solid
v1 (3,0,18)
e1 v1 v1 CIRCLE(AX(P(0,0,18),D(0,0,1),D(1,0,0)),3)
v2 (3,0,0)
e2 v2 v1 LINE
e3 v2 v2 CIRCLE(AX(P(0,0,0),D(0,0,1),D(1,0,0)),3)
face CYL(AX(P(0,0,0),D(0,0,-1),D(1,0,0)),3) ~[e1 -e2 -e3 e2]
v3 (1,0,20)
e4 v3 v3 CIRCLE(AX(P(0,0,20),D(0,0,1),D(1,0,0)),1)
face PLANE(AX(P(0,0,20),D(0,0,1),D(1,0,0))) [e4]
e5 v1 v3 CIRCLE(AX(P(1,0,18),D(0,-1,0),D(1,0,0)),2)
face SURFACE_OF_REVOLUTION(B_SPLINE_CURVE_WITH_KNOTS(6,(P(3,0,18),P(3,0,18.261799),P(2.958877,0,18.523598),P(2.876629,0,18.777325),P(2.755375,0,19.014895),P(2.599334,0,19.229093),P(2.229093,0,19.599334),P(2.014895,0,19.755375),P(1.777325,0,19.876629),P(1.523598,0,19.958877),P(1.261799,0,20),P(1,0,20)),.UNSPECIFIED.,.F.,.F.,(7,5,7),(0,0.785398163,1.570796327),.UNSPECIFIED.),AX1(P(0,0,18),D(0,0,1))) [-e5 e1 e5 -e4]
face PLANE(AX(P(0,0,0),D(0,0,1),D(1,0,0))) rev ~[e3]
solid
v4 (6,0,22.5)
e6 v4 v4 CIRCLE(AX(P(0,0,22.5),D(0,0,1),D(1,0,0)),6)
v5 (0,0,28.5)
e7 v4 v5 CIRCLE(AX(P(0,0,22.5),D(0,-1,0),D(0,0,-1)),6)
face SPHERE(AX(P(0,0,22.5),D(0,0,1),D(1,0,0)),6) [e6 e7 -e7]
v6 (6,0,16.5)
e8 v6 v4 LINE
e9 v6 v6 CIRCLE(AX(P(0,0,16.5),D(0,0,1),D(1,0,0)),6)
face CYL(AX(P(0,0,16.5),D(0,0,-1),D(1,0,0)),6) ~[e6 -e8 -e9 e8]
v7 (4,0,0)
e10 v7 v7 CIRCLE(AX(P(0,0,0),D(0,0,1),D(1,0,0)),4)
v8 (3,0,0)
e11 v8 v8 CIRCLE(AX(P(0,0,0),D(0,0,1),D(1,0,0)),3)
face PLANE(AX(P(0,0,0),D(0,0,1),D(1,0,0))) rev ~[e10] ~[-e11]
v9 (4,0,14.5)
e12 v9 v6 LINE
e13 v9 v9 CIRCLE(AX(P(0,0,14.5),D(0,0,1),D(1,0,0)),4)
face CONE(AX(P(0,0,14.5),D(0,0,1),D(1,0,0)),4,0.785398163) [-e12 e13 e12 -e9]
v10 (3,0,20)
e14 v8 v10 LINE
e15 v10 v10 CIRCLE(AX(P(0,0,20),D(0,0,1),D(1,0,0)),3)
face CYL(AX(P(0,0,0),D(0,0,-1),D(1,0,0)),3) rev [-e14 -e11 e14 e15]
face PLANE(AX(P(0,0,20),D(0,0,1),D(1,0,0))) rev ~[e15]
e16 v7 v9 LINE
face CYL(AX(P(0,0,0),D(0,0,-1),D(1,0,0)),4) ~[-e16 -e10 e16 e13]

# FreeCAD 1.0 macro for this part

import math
import FreeCAD as App
import Part
import Sketcher


def edges_at(feature, points):
    """Names of the edges that pass closest to the given points."""
    edges = feature.Shape.Edges
    near = lambda p: min(range(len(edges)), key=lambda i: edges[i].distToShape(Part.Vertex(*p))[0])
    return sorted({f"Edge{near(p) + 1}" for p in points})


def add_polygon(sketch, points):
    """Adds a closed chain of lines whose ends are joined by coincident constraints."""
    first, n = sketch.GeometryCount, len(points)
    for a, b in zip(points, points[1:] + points[:1]):
        sketch.addGeometry(Part.LineSegment(App.Vector(*a, 0), App.Vector(*b, 0)), False)
    for i in range(n):
        sketch.addConstraint(Sketcher.Constraint("Coincident", first + i, 2, first + (i + 1) % n, 1))

doc = App.newDocument("Part")
params = doc.addObject("Spreadsheet::Sheet", "Params")
for row, (alias, value) in enumerate([
    ("sketch1_diameter", "6 mm"),
    ("pad1_length", "20 mm"),
    ("sketch2_width", "4 mm"),
    ("sketch2_width2", "6 mm"),
    ("sketch2_height", "2 mm"),
    ("revolution_angle", "360 deg"),
    ("sketch3_diameter", "12 mm"),
    ("pad2_length", "6 mm"),
    ("sketch4_radius", "6 mm"),
    ("revolution2_angle", "360 deg"),
    ("sketch5_diameter", "8 mm"),
    ("pad3_length", "15 mm"),
    ("sketch6_diameter", "6 mm"),
    ("pad4_length", "20 mm"),
    ("fillet_radius", "2 mm"),
], start=1):
    params.set(f"A{row}", alias)
    params.set(f"B{row}", "=" + value)
    params.setAlias(f"B{row}", alias)

body = doc.addObject("PartDesign::Body", "Body")

sketch1 = body.newObject("Sketcher::SketchObject", "Sketch")
sketch1.AttachmentSupport = (doc.getObject("XY_Plane"), [""])
sketch1.MapMode = "FlatFace"
sketch1.addGeometry(Part.Circle(App.Vector(0, 0, 0), App.Vector(0, 0, 1), 3), False)
sketch1.addConstraint([
    Sketcher.Constraint("Coincident", 0, 3, -1, 1),
    Sketcher.Constraint("Diameter", 0, 6.0),
])
sketch1.setExpression("Constraints[1]", "Params.sketch1_diameter")
pad1 = body.newObject("PartDesign::Pad", "Pad")
pad1.Profile = sketch1
pad1.setExpression("Length", "Params.pad1_length")
body2 = doc.addObject("PartDesign::Body", "Body001")

sketch2 = body2.newObject("Sketcher::SketchObject", "Sketch001")
sketch2.AttachmentSupport = (doc.getObject("XZ_Plane001"), [""])
sketch2.MapMode = "FlatFace"
add_polygon(sketch2, [(0, 14.5), (4, 14.5), (6, 16.5), (0, 16.5)])
sketch2.addConstraint([
    Sketcher.Constraint("Horizontal", 0),
    Sketcher.Constraint("Horizontal", 2),
    Sketcher.Constraint("Vertical", 3),
    Sketcher.Constraint("PointOnObject", 2, 2, -2),
    Sketcher.Constraint("DistanceX", 0, 1, 0, 2, 4.0),
    Sketcher.Constraint("DistanceX", 2, 2, 2, 1, 6.0),
    Sketcher.Constraint("DistanceY", 3, 2, 3, 1, 2.0),
    Sketcher.Constraint("DistanceY", -1, 1, 0, 2, 14.5),
])
sketch2.setExpression("Constraints[8]", "Params.sketch2_width")
sketch2.setExpression("Constraints[9]", "Params.sketch2_width2")
sketch2.setExpression("Constraints[10]", "Params.sketch2_height")
revolution = body2.newObject("PartDesign::Revolution", "Revolution")
revolution.Profile = sketch2
revolution.ReferenceAxis = (sketch2, ["V_Axis"])
revolution.setExpression("Angle", "Params.revolution_angle")
body3 = doc.addObject("PartDesign::Body", "Body002")

sketch3 = body3.newObject("Sketcher::SketchObject", "Sketch002")
sketch3.AttachmentSupport = (doc.getObject("XY_Plane002"), [""])
sketch3.MapMode = "FlatFace"
sketch3.AttachmentOffset = App.Placement(App.Vector(0, 0, 16.5), App.Rotation())
sketch3.addGeometry(Part.Circle(App.Vector(0, 0, 0), App.Vector(0, 0, 1), 6), False)
sketch3.addConstraint([
    Sketcher.Constraint("Coincident", 0, 3, -1, 1),
    Sketcher.Constraint("Diameter", 0, 12.0),
])
sketch3.setExpression("Constraints[1]", "Params.sketch3_diameter")
pad2 = body3.newObject("PartDesign::Pad", "Pad001")
pad2.Profile = sketch3
pad2.setExpression("Length", "Params.pad2_length")
body4 = doc.addObject("PartDesign::Body", "Body003")

sketch4 = body4.newObject("Sketcher::SketchObject", "Sketch003")
sketch4.AttachmentSupport = (doc.getObject("XZ_Plane003"), [""])
sketch4.MapMode = "FlatFace"
sketch4.addGeometry([
    Part.ArcOfCircle(Part.Circle(App.Vector(0, 22.5, 0), App.Vector(0, 0, 1), 6), math.radians(-90), math.radians(90)),
    Part.LineSegment(App.Vector(0, 28.5, 0), App.Vector(0, 16.5, 0)),
], False)
sketch4.addConstraint([
    Sketcher.Constraint("Coincident", 0, 1, 1, 2),
    Sketcher.Constraint("Coincident", 1, 1, 0, 2),
    Sketcher.Constraint("Vertical", 1),
    Sketcher.Constraint("PointOnObject", 0, 3, -2),
    Sketcher.Constraint("PointOnObject", 0, 1, -2),
    Sketcher.Constraint("Radius", 0, 6.0),
    Sketcher.Constraint("DistanceY", -1, 1, 0, 3, 22.5),
])
sketch4.setExpression("Constraints[5]", "Params.sketch4_radius")
revolution2 = body4.newObject("PartDesign::Revolution", "Revolution001")
revolution2.Profile = sketch4
revolution2.ReferenceAxis = (sketch4, ["V_Axis"])
revolution2.setExpression("Angle", "Params.revolution2_angle")
body5 = doc.addObject("PartDesign::Body", "Body004")

sketch5 = body5.newObject("Sketcher::SketchObject", "Sketch004")
sketch5.AttachmentSupport = (doc.getObject("XY_Plane004"), [""])
sketch5.MapMode = "FlatFace"
sketch5.addGeometry(Part.Circle(App.Vector(0, 0, 0), App.Vector(0, 0, 1), 4), False)
sketch5.addConstraint([
    Sketcher.Constraint("Coincident", 0, 3, -1, 1),
    Sketcher.Constraint("Diameter", 0, 8.0),
])
sketch5.setExpression("Constraints[1]", "Params.sketch5_diameter")
pad3 = body5.newObject("PartDesign::Pad", "Pad002")
pad3.Profile = sketch5
pad3.setExpression("Length", "Params.pad3_length")
doc.recompute()

boolean = body5.newObject("PartDesign::Boolean", "Boolean")
boolean.Type = "Fuse"
boolean.addObjects([body2])
doc.recompute()

boolean2 = body5.newObject("PartDesign::Boolean", "Boolean001")
boolean2.Type = "Fuse"
boolean2.addObjects([body3])
doc.recompute()

boolean3 = body5.newObject("PartDesign::Boolean", "Boolean002")
boolean3.Type = "Fuse"
boolean3.addObjects([body4])
doc.recompute()

boolean4 = body5.newObject("PartDesign::Boolean", "Boolean003")
boolean4.Type = "Cut"
boolean4.addObjects([body])
body6 = doc.addObject("PartDesign::Body", "Body005")

sketch6 = body6.newObject("Sketcher::SketchObject", "Sketch005")
sketch6.AttachmentSupport = (doc.getObject("XY_Plane005"), [""])
sketch6.MapMode = "FlatFace"
sketch6.addGeometry(Part.Circle(App.Vector(0, 0, 0), App.Vector(0, 0, 1), 3), False)
sketch6.addConstraint([
    Sketcher.Constraint("Coincident", 0, 3, -1, 1),
    Sketcher.Constraint("Diameter", 0, 6.0),
])
sketch6.setExpression("Constraints[1]", "Params.sketch6_diameter")
pad4 = body6.newObject("PartDesign::Pad", "Pad003")
pad4.Profile = sketch6
pad4.setExpression("Length", "Params.pad4_length")
doc.recompute()

fillet = body6.newObject("PartDesign::Fillet", "Fillet")
fillet.Base = (pad4, edges_at(pad4, [(-3, 0, 20)]))
fillet.setExpression("Radius", "Params.fillet_radius")

doc.recompute()
